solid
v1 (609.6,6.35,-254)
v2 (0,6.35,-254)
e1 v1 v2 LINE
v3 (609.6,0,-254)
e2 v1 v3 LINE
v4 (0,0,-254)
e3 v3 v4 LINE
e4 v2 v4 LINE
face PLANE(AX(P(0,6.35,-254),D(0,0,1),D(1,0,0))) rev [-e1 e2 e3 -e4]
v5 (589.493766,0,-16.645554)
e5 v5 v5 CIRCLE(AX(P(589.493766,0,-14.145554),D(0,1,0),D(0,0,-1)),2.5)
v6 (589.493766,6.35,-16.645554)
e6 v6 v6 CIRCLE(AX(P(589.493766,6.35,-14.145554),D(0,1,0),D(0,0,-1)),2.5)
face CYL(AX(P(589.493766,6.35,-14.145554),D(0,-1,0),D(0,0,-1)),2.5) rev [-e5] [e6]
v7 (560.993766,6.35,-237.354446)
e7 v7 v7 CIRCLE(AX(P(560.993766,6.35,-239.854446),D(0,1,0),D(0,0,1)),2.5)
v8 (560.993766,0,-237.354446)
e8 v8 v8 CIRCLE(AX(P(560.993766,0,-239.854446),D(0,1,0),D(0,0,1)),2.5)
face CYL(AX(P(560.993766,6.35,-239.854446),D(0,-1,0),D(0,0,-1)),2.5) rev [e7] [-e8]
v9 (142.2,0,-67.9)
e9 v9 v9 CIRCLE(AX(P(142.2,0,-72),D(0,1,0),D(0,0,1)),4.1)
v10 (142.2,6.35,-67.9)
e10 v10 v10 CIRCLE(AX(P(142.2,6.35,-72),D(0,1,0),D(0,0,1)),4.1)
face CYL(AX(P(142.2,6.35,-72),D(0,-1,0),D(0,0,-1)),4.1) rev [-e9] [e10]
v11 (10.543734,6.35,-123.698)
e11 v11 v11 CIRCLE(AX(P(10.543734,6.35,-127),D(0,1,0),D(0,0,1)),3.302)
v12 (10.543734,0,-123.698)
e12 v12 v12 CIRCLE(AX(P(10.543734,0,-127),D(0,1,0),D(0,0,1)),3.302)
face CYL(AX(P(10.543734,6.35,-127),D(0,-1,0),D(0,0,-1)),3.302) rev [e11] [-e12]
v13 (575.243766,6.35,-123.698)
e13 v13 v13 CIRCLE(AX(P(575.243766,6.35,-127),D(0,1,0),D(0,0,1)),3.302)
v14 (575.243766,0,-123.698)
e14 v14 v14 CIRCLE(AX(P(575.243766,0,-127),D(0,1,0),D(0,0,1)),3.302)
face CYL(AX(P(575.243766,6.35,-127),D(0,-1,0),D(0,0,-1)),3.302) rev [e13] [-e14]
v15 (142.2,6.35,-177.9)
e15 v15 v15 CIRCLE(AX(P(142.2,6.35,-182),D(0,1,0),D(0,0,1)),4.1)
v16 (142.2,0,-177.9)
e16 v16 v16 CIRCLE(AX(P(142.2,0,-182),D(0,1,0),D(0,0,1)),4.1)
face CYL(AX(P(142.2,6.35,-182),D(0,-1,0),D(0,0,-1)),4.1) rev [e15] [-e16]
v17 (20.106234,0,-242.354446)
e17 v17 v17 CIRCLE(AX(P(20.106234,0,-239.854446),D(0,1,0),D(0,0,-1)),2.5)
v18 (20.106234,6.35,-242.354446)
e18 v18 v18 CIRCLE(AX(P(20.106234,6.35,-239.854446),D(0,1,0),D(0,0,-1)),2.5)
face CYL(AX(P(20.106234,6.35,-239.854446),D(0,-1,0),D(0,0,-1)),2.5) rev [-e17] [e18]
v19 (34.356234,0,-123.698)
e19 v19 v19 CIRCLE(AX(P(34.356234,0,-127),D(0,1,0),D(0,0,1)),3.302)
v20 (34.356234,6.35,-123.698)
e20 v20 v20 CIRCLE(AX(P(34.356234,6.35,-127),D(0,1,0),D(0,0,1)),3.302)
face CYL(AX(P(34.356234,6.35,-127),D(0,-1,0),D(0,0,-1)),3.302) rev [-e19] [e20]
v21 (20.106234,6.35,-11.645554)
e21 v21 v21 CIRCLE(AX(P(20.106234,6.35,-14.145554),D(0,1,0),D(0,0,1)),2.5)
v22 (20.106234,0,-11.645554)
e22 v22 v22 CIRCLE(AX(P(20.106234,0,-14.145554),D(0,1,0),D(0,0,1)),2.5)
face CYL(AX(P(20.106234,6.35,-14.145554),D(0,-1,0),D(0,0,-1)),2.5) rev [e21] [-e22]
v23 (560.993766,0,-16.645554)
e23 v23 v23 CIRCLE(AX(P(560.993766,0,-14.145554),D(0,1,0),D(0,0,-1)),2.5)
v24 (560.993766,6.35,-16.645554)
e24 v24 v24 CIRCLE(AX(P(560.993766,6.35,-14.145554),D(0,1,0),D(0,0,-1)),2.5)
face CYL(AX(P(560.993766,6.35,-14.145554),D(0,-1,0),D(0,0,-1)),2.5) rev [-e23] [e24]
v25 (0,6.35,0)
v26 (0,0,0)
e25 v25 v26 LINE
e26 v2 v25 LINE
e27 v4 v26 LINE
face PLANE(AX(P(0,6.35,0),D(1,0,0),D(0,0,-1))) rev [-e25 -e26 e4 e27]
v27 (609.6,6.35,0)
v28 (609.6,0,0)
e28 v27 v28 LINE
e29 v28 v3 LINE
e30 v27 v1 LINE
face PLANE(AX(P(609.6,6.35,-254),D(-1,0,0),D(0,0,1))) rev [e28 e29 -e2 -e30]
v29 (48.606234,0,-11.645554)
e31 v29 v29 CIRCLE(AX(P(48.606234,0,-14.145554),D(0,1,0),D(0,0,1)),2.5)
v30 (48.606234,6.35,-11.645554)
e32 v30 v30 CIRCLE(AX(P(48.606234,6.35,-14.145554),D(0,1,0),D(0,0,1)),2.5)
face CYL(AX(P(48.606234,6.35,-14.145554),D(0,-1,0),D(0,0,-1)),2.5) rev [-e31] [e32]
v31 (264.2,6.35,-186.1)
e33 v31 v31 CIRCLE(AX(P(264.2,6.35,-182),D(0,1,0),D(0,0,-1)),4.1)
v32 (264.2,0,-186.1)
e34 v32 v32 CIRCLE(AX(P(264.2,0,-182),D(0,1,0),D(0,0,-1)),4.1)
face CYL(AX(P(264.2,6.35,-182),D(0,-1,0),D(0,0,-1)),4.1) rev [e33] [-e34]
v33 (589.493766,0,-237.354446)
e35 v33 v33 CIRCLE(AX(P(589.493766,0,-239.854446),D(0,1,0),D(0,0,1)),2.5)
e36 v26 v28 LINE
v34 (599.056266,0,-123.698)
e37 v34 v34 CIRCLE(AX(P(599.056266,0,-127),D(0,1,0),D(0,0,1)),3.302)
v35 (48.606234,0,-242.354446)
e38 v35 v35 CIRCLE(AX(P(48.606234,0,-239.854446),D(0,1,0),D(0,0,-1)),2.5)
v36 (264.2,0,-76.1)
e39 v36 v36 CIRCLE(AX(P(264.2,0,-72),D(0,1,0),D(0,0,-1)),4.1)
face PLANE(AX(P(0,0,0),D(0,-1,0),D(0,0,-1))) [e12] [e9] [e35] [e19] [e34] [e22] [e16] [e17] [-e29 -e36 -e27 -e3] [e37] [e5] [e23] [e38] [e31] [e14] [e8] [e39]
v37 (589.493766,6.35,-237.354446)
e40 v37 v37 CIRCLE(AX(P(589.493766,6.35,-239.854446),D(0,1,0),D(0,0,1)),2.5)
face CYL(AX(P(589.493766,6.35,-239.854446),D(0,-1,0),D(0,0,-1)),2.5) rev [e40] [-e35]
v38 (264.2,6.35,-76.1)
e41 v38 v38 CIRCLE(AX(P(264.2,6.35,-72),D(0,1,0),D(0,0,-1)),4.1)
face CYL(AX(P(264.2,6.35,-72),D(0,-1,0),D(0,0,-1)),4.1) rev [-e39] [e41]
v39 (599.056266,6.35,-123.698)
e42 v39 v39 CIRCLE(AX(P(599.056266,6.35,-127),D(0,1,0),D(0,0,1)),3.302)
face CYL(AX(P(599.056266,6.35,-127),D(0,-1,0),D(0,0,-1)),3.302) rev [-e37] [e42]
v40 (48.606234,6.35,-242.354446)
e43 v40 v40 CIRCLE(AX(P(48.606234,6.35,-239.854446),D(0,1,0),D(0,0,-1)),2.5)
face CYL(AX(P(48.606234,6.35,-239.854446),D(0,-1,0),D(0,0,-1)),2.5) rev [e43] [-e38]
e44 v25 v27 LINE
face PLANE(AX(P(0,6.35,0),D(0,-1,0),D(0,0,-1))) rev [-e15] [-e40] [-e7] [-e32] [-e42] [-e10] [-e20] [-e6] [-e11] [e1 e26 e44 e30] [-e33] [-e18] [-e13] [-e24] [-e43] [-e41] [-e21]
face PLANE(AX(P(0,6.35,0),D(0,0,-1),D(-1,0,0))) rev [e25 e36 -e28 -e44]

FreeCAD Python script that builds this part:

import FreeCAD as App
import Part
import Sketcher
Q = App.Units.Quantity


def add_polygon(sketch, points):
    """Adds a closed chain of lines whose ends are joined by coincident constraints."""
    first, n = sketch.GeometryCount, len(points)
    for a, b in zip(points, points[1:] + points[:1]):
        sketch.addGeometry(Part.LineSegment(App.Vector(*a, 0), App.Vector(*b, 0)), False)
    for i in range(n):
        sketch.addConstraint(Sketcher.Constraint("Coincident", first + i, 2, first + (i + 1) % n, 1))

doc = App.newDocument("Part")
params = doc.addObject("Spreadsheet::Sheet", "Params")
for row, (alias, value) in enumerate([
    ("sketch1_diameter", "0.26 in"),
    ("sketch1_width", "24 in"),
    ("sketch1_height", "10 in"),
    ("pad1_length", "0.25 in"),
], start=1):
    params.set(f"A{row}", alias)
    params.set(f"B{row}", "=" + value)
    params.setAlias(f"B{row}", alias)

body = doc.addObject("PartDesign::Body", "Body")

# Sketch on XZ plane
sketch1 = body.newObject("Sketcher::SketchObject", "Sketch")
sketch1.AttachmentSupport = (doc.getObject("XZ_Plane"), [""])
sketch1.MapMode = "FlatFace"
add_polygon(sketch1, [(0, -254), (0, 0), (609.6, 0), (609.6, -254)])  # lines 0-3
sketch1.addGeometry(Part.Circle(App.Vector(20.1, -14.1, 0), App.Vector(0, 0, 1), 2.5), False)  # 4
sketch1.addGeometry(Part.Circle(App.Vector(48.6, -14.1, 0), App.Vector(0, 0, 1), 2.5), False)  # 5
sketch1.addGeometry(Part.Circle(App.Vector(142.2, -72, 0), App.Vector(0, 0, 1), 4.1), False)  # 6
sketch1.addGeometry(Part.Circle(App.Vector(264.2, -72, 0), App.Vector(0, 0, 1), 4.1), False)  # 7
sketch1.addGeometry(Part.Circle(App.Vector(561, -14.1, 0), App.Vector(0, 0, 1), 2.5), False)  # 8
sketch1.addGeometry(Part.Circle(App.Vector(589.5, -14.1, 0), App.Vector(0, 0, 1), 2.5), False)  # 9
sketch1.addGeometry(Part.Circle(App.Vector(10.5, -127, 0), App.Vector(0, 0, 1), 3.3), False)  # 10
sketch1.addGeometry(Part.Circle(App.Vector(34.4, -127, 0), App.Vector(0, 0, 1), 3.3), False)  # 11
sketch1.addGeometry(Part.Circle(App.Vector(142.2, -182, 0), App.Vector(0, 0, 1), 4.1), False)  # 12
sketch1.addGeometry(Part.Circle(App.Vector(264.2, -182, 0), App.Vector(0, 0, 1), 4.1), False)  # 13
sketch1.addGeometry(Part.Circle(App.Vector(20.1, -239.9, 0), App.Vector(0, 0, 1), 2.5), False)  # 14
sketch1.addGeometry(Part.Circle(App.Vector(48.6, -239.9, 0), App.Vector(0, 0, 1), 2.5), False)  # 15
sketch1.addGeometry(Part.Circle(App.Vector(575.2, -127, 0), App.Vector(0, 0, 1), 3.3), False)  # 16
sketch1.addGeometry(Part.Circle(App.Vector(599.1, -127, 0), App.Vector(0, 0, 1), 3.3), False)  # 17
sketch1.addGeometry(Part.Circle(App.Vector(561, -239.9, 0), App.Vector(0, 0, 1), 2.5), False)  # 18
sketch1.addGeometry(Part.Circle(App.Vector(589.5, -239.9, 0), App.Vector(0, 0, 1), 2.5), False)  # 19
sketch1.addConstraint([
    Sketcher.Constraint("Vertical", 0),
    Sketcher.Constraint("Horizontal", 1),
    Sketcher.Constraint("Vertical", 2),
    Sketcher.Constraint("Horizontal", 3),
    Sketcher.Constraint("Coincident", 0, 2, -1, 1),
    Sketcher.Constraint("Equal", 4, 5),
    Sketcher.Constraint("Equal", 6, 7),
    Sketcher.Constraint("Equal", 5, 8),
    Sketcher.Constraint("Equal", 8, 9),
    Sketcher.Constraint("Equal", 10, 11),
    Sketcher.Constraint("Equal", 7, 12),
    Sketcher.Constraint("Equal", 12, 13),
    Sketcher.Constraint("Equal", 9, 14),
    Sketcher.Constraint("Equal", 14, 15),
    Sketcher.Constraint("Equal", 11, 16),
    Sketcher.Constraint("Equal", 16, 17),
    Sketcher.Constraint("Equal", 15, 18),
    Sketcher.Constraint("Equal", 18, 19),
    Sketcher.Constraint("Horizontal", 4, 3, 5, 3),
    Sketcher.Constraint("Horizontal", 6, 3, 7, 3),
    Sketcher.Constraint("Horizontal", 5, 3, 8, 3),
    Sketcher.Constraint("Horizontal", 8, 3, 9, 3),
    Sketcher.Constraint("Horizontal", 10, 3, 11, 3),
    Sketcher.Constraint("Horizontal", 12, 3, 13, 3),
    Sketcher.Constraint("Horizontal", 14, 3, 15, 3),
    Sketcher.Constraint("Horizontal", 11, 3, 16, 3),
    Sketcher.Constraint("Horizontal", 16, 3, 17, 3),
    Sketcher.Constraint("Horizontal", 15, 3, 18, 3),
    Sketcher.Constraint("Horizontal", 18, 3, 19, 3),
    Sketcher.Constraint("Vertical", 6, 3, 12, 3),
    Sketcher.Constraint("Vertical", 7, 3, 13, 3),
    Sketcher.Constraint("Vertical", 4, 3, 14, 3),
    Sketcher.Constraint("Vertical", 5, 3, 15, 3),
    Sketcher.Constraint("Vertical", 8, 3, 18, 3),
    Sketcher.Constraint("Vertical", 9, 3, 19, 3),
    Sketcher.Constraint("Diameter", 10, Q("0.26 in")),
    Sketcher.Constraint("DistanceX", 1, 1, 1, 2, Q("24 in")),
    Sketcher.Constraint("DistanceY", 0, 1, 0, 2, Q("10 in")),
    Sketcher.Constraint("DistanceY", 10, 3, -1, 1, Q("5 in")),
    Sketcher.Constraint("Diameter", 4, Q("5 mm")),
    Sketcher.Constraint("Diameter", 6, Q("8.2 mm")),
    Sketcher.Constraint("DistanceX", 10, 3, 11, 3, Q("0.9375 in")),
    Sketcher.Constraint("DistanceX", 16, 3, 17, 3, Q("0.9375 in")),
    Sketcher.Constraint("DistanceX", -1, 1, 6, 3, Q("142.2 mm")),
    Sketcher.Constraint("DistanceY", 6, 3, -1, 1, Q("72 mm")),
    Sketcher.Constraint("DistanceX", -1, 1, 7, 3, Q("264.2 mm")),
    Sketcher.Constraint("DistanceY", 12, 3, -1, 1, Q("182 mm")),
    Sketcher.Constraint("DistanceX", 4, 3, 5, 3, Q("28.5 mm")),
    Sketcher.Constraint("DistanceX", 8, 3, 9, 3, Q("28.5 mm")),
    Sketcher.Constraint("DistanceX", 10, 3, 4, 3, Q("9.5625 mm")),
    Sketcher.Constraint("DistanceX", 8, 3, 16, 3, Q("14.25 mm")),
    Sketcher.Constraint("DistanceX", 5, 3, 8, 3, Q("512.387531 mm")),
    Sketcher.Constraint("DistanceY", 14, 3, 4, 3, Q("225.708891 mm")),
    Sketcher.Constraint("DistanceX", -1, 1, 4, 3, Q("20.106234 mm")),
    Sketcher.Constraint("DistanceY", 4, 3, -1, 1, Q("14.145554 mm")),
])
sketch1.setExpression("Constraints[39]", "Params.sketch1_diameter")
sketch1.setExpression("Constraints[40]", "Params.sketch1_width")
sketch1.setExpression("Constraints[41]", "Params.sketch1_height")
pad1 = body.newObject("PartDesign::Pad", "Pad")
pad1.Profile = sketch1
pad1.setExpression("Length", "Params.pad1_length")
pad1.Reversed = True

doc.recompute()
